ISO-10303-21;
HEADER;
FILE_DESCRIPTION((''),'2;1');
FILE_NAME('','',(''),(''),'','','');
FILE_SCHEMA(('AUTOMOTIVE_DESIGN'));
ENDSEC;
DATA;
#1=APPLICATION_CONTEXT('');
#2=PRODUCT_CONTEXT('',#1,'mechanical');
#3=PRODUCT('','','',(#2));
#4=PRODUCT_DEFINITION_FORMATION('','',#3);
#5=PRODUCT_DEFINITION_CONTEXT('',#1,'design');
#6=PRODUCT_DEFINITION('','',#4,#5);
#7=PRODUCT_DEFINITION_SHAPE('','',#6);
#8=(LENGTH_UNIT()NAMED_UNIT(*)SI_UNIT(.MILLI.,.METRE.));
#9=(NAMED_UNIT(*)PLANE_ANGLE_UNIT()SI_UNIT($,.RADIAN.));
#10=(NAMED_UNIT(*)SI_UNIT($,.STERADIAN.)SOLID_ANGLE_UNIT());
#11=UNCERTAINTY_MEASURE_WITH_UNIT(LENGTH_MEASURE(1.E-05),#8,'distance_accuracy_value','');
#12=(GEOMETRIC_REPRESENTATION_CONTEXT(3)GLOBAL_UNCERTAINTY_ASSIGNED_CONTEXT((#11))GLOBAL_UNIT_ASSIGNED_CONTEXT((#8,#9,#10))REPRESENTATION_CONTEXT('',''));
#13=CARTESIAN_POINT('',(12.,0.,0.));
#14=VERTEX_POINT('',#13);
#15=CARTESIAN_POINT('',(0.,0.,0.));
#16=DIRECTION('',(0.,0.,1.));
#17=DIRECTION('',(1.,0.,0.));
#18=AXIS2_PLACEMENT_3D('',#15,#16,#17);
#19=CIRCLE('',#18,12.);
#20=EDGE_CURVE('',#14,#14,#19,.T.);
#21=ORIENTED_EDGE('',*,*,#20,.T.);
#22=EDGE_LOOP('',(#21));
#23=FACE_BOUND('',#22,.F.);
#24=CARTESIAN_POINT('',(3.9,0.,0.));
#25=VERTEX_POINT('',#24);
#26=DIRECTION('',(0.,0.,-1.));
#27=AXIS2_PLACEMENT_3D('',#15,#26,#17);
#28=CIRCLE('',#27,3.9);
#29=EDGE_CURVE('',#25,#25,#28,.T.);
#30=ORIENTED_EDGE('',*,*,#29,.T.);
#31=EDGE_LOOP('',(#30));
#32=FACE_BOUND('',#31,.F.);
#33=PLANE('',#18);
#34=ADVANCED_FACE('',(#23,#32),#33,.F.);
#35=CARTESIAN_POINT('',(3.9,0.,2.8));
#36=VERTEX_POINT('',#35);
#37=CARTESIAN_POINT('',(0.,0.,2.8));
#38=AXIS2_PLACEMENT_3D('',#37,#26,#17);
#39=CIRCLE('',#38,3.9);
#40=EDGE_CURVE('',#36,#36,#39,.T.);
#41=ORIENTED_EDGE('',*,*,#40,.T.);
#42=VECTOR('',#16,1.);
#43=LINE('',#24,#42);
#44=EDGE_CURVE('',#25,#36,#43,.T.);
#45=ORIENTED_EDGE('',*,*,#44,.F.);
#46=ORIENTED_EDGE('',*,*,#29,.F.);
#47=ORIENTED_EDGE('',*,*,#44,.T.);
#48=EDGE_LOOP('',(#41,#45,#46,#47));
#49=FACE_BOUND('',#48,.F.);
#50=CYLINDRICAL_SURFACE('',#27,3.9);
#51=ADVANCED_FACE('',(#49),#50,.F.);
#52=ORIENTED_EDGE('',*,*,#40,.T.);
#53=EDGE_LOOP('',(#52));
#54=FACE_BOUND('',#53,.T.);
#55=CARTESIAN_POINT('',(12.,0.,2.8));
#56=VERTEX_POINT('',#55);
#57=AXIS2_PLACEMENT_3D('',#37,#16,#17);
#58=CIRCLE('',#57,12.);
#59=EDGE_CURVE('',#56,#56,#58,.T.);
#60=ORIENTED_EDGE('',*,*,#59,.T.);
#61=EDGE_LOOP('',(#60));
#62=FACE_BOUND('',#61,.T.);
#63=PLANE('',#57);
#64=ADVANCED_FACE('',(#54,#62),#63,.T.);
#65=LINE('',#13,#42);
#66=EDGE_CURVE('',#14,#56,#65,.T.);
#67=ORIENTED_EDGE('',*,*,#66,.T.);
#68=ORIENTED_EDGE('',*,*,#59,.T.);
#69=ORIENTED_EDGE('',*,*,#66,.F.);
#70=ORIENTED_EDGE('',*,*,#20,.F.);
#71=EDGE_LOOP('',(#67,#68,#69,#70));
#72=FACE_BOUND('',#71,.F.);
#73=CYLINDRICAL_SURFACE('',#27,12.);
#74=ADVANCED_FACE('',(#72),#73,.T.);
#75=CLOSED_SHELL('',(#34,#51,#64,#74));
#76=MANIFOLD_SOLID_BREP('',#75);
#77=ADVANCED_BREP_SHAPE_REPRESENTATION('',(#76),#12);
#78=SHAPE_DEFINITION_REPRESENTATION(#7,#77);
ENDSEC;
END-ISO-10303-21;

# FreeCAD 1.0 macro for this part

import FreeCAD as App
import Part
import Sketcher
Q = App.Units.Quantity

doc = App.newDocument("Part")
body = doc.addObject("PartDesign::Body", "Body")

# Sketch on XY plane
sketch1 = body.newObject("Sketcher::SketchObject", "Sketch")
sketch1.AttachmentSupport = (doc.getObject("XY_Plane"), [""])
sketch1.MapMode = "FlatFace"
sketch1.addGeometry(Part.Circle(App.Vector(0, 0, 0), App.Vector(0, 0, 1), 12), False)
sketch1.addConstraint([
    Sketcher.Constraint("Coincident", 0, 3, -1, 1),
    Sketcher.Constraint("Diameter", 0, Q("24 mm")),
])
pad1 = body.newObject("PartDesign::Pad", "Pad")
pad1.Profile = sketch1
pad1.Length = 2.8

# Sketch on XY plane
sketch2 = body.newObject("Sketcher::SketchObject", "Sketch001")
sketch2.AttachmentSupport = (doc.getObject("XY_Plane"), [""])
sketch2.MapMode = "FlatFace"
sketch2.addGeometry(Part.Circle(App.Vector(0, 0, 0), App.Vector(0, 0, 1), 3.9), False)
sketch2.addConstraint([
    Sketcher.Constraint("Coincident", 0, 3, -1, 1),
    Sketcher.Constraint("Diameter", 0, Q("7.8 mm")),
])
pocket1 = body.newObject("PartDesign::Pocket", "Pocket")
pocket1.Profile = sketch2
pocket1.Length = 5
pocket1.Reversed = True

doc.recompute()
